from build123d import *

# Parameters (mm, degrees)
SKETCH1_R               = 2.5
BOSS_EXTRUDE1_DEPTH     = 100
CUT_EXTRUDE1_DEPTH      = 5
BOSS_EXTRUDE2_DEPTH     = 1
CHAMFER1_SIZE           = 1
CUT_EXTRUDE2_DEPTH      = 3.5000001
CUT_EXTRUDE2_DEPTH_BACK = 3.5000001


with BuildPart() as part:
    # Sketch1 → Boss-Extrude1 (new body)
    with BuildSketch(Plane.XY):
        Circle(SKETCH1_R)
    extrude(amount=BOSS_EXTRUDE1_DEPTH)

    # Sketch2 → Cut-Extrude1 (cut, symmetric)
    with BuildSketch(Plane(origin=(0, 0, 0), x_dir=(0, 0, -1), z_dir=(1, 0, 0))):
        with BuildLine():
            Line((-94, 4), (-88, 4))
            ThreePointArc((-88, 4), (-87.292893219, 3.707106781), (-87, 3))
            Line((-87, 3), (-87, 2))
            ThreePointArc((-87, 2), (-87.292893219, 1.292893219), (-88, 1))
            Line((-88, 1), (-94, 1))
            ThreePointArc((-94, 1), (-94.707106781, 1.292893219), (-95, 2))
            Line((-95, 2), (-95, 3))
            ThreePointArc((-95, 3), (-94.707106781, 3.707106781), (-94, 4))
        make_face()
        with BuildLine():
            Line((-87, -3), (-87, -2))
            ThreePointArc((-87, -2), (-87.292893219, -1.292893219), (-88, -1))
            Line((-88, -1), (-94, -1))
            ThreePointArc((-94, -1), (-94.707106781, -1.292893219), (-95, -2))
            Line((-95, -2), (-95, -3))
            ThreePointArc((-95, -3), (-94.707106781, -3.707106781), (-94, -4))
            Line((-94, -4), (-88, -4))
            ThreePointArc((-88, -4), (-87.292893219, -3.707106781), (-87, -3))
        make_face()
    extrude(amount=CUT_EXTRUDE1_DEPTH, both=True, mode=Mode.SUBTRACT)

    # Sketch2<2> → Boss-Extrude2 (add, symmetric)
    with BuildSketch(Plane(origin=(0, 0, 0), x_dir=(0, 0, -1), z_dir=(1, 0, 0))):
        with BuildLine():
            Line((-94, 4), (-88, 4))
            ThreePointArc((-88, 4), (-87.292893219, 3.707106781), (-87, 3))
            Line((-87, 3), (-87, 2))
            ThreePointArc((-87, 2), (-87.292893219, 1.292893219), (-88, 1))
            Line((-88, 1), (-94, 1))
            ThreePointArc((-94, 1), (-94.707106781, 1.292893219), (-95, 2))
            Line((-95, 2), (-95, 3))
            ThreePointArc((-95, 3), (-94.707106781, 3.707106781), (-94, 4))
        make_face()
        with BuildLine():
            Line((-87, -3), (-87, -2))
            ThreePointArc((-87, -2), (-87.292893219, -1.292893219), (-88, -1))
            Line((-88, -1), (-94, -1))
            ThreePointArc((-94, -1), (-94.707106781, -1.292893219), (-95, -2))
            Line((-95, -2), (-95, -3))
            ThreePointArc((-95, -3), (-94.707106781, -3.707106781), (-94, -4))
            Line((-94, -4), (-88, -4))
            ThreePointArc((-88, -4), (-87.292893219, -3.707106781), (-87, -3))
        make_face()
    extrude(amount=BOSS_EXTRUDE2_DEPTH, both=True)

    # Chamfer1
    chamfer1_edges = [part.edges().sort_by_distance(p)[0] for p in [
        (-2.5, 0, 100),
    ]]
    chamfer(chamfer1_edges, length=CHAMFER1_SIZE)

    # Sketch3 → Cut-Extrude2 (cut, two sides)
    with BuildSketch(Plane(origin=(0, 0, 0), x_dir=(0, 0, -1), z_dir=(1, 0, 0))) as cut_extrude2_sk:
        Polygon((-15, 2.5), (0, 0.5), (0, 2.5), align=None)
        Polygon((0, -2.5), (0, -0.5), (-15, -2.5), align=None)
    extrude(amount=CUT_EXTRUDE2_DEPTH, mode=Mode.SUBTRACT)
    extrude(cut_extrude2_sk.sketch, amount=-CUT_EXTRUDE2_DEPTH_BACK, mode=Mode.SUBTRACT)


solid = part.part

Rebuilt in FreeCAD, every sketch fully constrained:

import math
import FreeCAD as App
import Part
import Sketcher

V = App.Vector


def edges_at(feature, points):
    """Names of the edges that pass closest to the given points."""
    edges = feature.Shape.Edges
    near = lambda p: min(range(len(edges)), key=lambda i: edges[i].distToShape(Part.Vertex(*p))[0])
    return sorted({f"Edge{near(p) + 1}" for p in points})

doc = App.newDocument("Part")
params = doc.addObject("Spreadsheet::Sheet", "Params")
for row, (alias, value) in enumerate([
    ("sketch1_diameter", "5 mm"),
    ("pad1_length", "100 mm"),
    ("sketch2_radius", "1 mm"),
    ("sketch2_width", "1 mm"),
    ("sketch2_height", "6 mm"),
    ("pocket1_length", "10 mm"),
    ("sketch3_radius", "1 mm"),
    ("sketch3_width", "1 mm"),
    ("sketch3_height", "6 mm"),
    ("pad2_length", "2 mm"),
    ("chamfer_size", "1 mm"),
    ("sketch4_width", "2 mm"),
    ("sketch4_height", "15 mm"),
], start=1):
    params.set(f"A{row}", alias)
    params.set(f"B{row}", "=" + value)
    params.setAlias(f"B{row}", alias)

body = doc.addObject("PartDesign::Body", "Body")

# Sketch on XY plane
sketch1 = body.newObject("Sketcher::SketchObject", "Sketch")
sketch1.AttachmentSupport = (doc.getObject("XY_Plane"), [""])
sketch1.MapMode = "FlatFace"
sketch1.addGeometry(Part.Circle(V(0, 0, 0), V(0, 0, 1), 2.5), False)
sketch1.addConstraint([
    Sketcher.Constraint("Coincident", 0, 3, -1, 1),
    Sketcher.Constraint("Diameter", 0, 5.0),
])
sketch1.setExpression("Constraints[1]", "Params.sketch1_diameter")
pad1 = body.newObject("PartDesign::Pad", "Pad")
pad1.Profile = sketch1
pad1.setExpression("Length", "Params.pad1_length")

# Sketch on YZ plane
sketch2 = body.newObject("Sketcher::SketchObject", "Sketch001")
sketch2.AttachmentSupport = (doc.getObject("YZ_Plane"), [""])
sketch2.MapMode = "FlatFace"
sketch2.addGeometry([
    Part.LineSegment(V(4, 88, 0), V(4, 94, 0)),  # 0
    Part.ArcOfCircle(Part.Circle(V(3, 94, 0), V(0, 0, 1), 1), math.radians(0), math.radians(90)),  # 1
    Part.LineSegment(V(3, 95, 0), V(2, 95, 0)),  # 2
    Part.ArcOfCircle(Part.Circle(V(2, 94, 0), V(0, 0, 1), 1), math.radians(90), math.radians(180)),  # 3
    Part.LineSegment(V(1, 94, 0), V(1, 88, 0)),  # 4
    Part.ArcOfCircle(Part.Circle(V(2, 88, 0), V(0, 0, 1), 1), math.radians(-180), math.radians(-90)),  # 5
    Part.LineSegment(V(2, 87, 0), V(3, 87, 0)),  # 6
    Part.ArcOfCircle(Part.Circle(V(3, 88, 0), V(0, 0, 1), 1), math.radians(-90), math.radians(0)),  # 7
    Part.LineSegment(V(-3, 87, 0), V(-2, 87, 0)),  # 8
    Part.ArcOfCircle(Part.Circle(V(-2, 88, 0), V(0, 0, 1), 1), math.radians(-90), math.radians(0)),  # 9
    Part.LineSegment(V(-1, 88, 0), V(-1, 94, 0)),  # 10
    Part.ArcOfCircle(Part.Circle(V(-2, 94, 0), V(0, 0, 1), 1), math.radians(0), math.radians(90)),  # 11
    Part.LineSegment(V(-2, 95, 0), V(-3, 95, 0)),  # 12
    Part.ArcOfCircle(Part.Circle(V(-3, 94, 0), V(0, 0, 1), 1), math.radians(90), math.radians(180)),  # 13
    Part.LineSegment(V(-4, 94, 0), V(-4, 88, 0)),  # 14
    Part.ArcOfCircle(Part.Circle(V(-3, 88, 0), V(0, 0, 1), 1), math.radians(-180), math.radians(-90)),  # 15
], False)
sketch2.addConstraint([
    Sketcher.Constraint("Tangent", 0, 2, 1, 1),
    Sketcher.Constraint("Tangent", 1, 2, 2, 1),
    Sketcher.Constraint("Tangent", 2, 2, 3, 1),
    Sketcher.Constraint("Tangent", 3, 2, 4, 1),
    Sketcher.Constraint("Tangent", 4, 2, 5, 1),
    Sketcher.Constraint("Tangent", 5, 2, 6, 1),
    Sketcher.Constraint("Tangent", 6, 2, 7, 1),
    Sketcher.Constraint("Tangent", 7, 2, 0, 1),
    Sketcher.Constraint("Tangent", 8, 2, 9, 1),
    Sketcher.Constraint("Tangent", 9, 2, 10, 1),
    Sketcher.Constraint("Tangent", 10, 2, 11, 1),
    Sketcher.Constraint("Tangent", 11, 2, 12, 1),
    Sketcher.Constraint("Tangent", 12, 2, 13, 1),
    Sketcher.Constraint("Tangent", 13, 2, 14, 1),
    Sketcher.Constraint("Tangent", 14, 2, 15, 1),
    Sketcher.Constraint("Tangent", 15, 2, 8, 1),
    Sketcher.Constraint("Vertical", 0),
    Sketcher.Constraint("Horizontal", 2),
    Sketcher.Constraint("Vertical", 4),
    Sketcher.Constraint("Horizontal", 6),
    Sketcher.Constraint("Horizontal", 8),
    Sketcher.Constraint("Vertical", 10),
    Sketcher.Constraint("Horizontal", 12),
    Sketcher.Constraint("Vertical", 14),
    Sketcher.Constraint("Equal", 1, 3),
    Sketcher.Constraint("Equal", 3, 5),
    Sketcher.Constraint("Equal", 5, 7),
    Sketcher.Constraint("Equal", 7, 9),
    Sketcher.Constraint("Equal", 9, 11),
    Sketcher.Constraint("Equal", 11, 13),
    Sketcher.Constraint("Equal", 13, 15),
    Sketcher.Constraint("Symmetric", 5, 3, 9, 3, -2),
    Sketcher.Constraint("Symmetric", 1, 3, 13, 3, -2),
    Sketcher.Constraint("Radius", 1, 1.0),
    Sketcher.Constraint("DistanceX", 2, 2, 2, 1, 1.0),
    Sketcher.Constraint("DistanceY", 0, 1, 0, 2, 6.0),
    Sketcher.Constraint("DistanceX", -1, 1, 1, 3, 3.0),
    Sketcher.Constraint("DistanceY", -1, 1, 1, 3, 94.0),
])
sketch2.setExpression("Constraints[33]", "Params.sketch2_radius")
sketch2.setExpression("Constraints[34]", "Params.sketch2_width")
sketch2.setExpression("Constraints[35]", "Params.sketch2_height")
pocket1 = body.newObject("PartDesign::Pocket", "Pocket")
pocket1.Profile = sketch2
pocket1.setExpression("Length", "Params.pocket1_length")
pocket1.Midplane = True

# Sketch on YZ plane
sketch3 = body.newObject("Sketcher::SketchObject", "Sketch002")
sketch3.AttachmentSupport = (doc.getObject("YZ_Plane"), [""])
sketch3.MapMode = "FlatFace"
sketch3.addGeometry([
    Part.LineSegment(V(4, 88, 0), V(4, 94, 0)),  # 0
    Part.ArcOfCircle(Part.Circle(V(3, 94, 0), V(0, 0, 1), 1), math.radians(0), math.radians(90)),  # 1
    Part.LineSegment(V(3, 95, 0), V(2, 95, 0)),  # 2
    Part.ArcOfCircle(Part.Circle(V(2, 94, 0), V(0, 0, 1), 1), math.radians(90), math.radians(180)),  # 3
    Part.LineSegment(V(1, 94, 0), V(1, 88, 0)),  # 4
    Part.ArcOfCircle(Part.Circle(V(2, 88, 0), V(0, 0, 1), 1), math.radians(-180), math.radians(-90)),  # 5
    Part.LineSegment(V(2, 87, 0), V(3, 87, 0)),  # 6
    Part.ArcOfCircle(Part.Circle(V(3, 88, 0), V(0, 0, 1), 1), math.radians(-90), math.radians(0)),  # 7
    Part.LineSegment(V(-3, 87, 0), V(-2, 87, 0)),  # 8
    Part.ArcOfCircle(Part.Circle(V(-2, 88, 0), V(0, 0, 1), 1), math.radians(-90), math.radians(0)),  # 9
    Part.LineSegment(V(-1, 88, 0), V(-1, 94, 0)),  # 10
    Part.ArcOfCircle(Part.Circle(V(-2, 94, 0), V(0, 0, 1), 1), math.radians(0), math.radians(90)),  # 11
    Part.LineSegment(V(-2, 95, 0), V(-3, 95, 0)),  # 12
    Part.ArcOfCircle(Part.Circle(V(-3, 94, 0), V(0, 0, 1), 1), math.radians(90), math.radians(180)),  # 13
    Part.LineSegment(V(-4, 94, 0), V(-4, 88, 0)),  # 14
    Part.ArcOfCircle(Part.Circle(V(-3, 88, 0), V(0, 0, 1), 1), math.radians(-180), math.radians(-90)),  # 15
], False)
sketch3.addConstraint([
    Sketcher.Constraint("Tangent", 0, 2, 1, 1),
    Sketcher.Constraint("Tangent", 1, 2, 2, 1),
    Sketcher.Constraint("Tangent", 2, 2, 3, 1),
    Sketcher.Constraint("Tangent", 3, 2, 4, 1),
    Sketcher.Constraint("Tangent", 4, 2, 5, 1),
    Sketcher.Constraint("Tangent", 5, 2, 6, 1),
    Sketcher.Constraint("Tangent", 6, 2, 7, 1),
    Sketcher.Constraint("Tangent", 7, 2, 0, 1),
    Sketcher.Constraint("Tangent", 8, 2, 9, 1),
    Sketcher.Constraint("Tangent", 9, 2, 10, 1),
    Sketcher.Constraint("Tangent", 10, 2, 11, 1),
    Sketcher.Constraint("Tangent", 11, 2, 12, 1),
    Sketcher.Constraint("Tangent", 12, 2, 13, 1),
    Sketcher.Constraint("Tangent", 13, 2, 14, 1),
    Sketcher.Constraint("Tangent", 14, 2, 15, 1),
    Sketcher.Constraint("Tangent", 15, 2, 8, 1),
    Sketcher.Constraint("Vertical", 0),
    Sketcher.Constraint("Horizontal", 2),
    Sketcher.Constraint("Vertical", 4),
    Sketcher.Constraint("Horizontal", 6),
    Sketcher.Constraint("Horizontal", 8),
    Sketcher.Constraint("Vertical", 10),
    Sketcher.Constraint("Horizontal", 12),
    Sketcher.Constraint("Vertical", 14),
    Sketcher.Constraint("Equal", 1, 3),
    Sketcher.Constraint("Equal", 3, 5),
    Sketcher.Constraint("Equal", 5, 7),
    Sketcher.Constraint("Equal", 7, 9),
    Sketcher.Constraint("Equal", 9, 11),
    Sketcher.Constraint("Equal", 11, 13),
    Sketcher.Constraint("Equal", 13, 15),
    Sketcher.Constraint("Symmetric", 5, 3, 9, 3, -2),
    Sketcher.Constraint("Symmetric", 1, 3, 13, 3, -2),
    Sketcher.Constraint("Radius", 1, 1.0),
    Sketcher.Constraint("DistanceX", 2, 2, 2, 1, 1.0),
    Sketcher.Constraint("DistanceY", 0, 1, 0, 2, 6.0),
    Sketcher.Constraint("DistanceX", -1, 1, 1, 3, 3.0),
    Sketcher.Constraint("DistanceY", -1, 1, 1, 3, 94.0),
])
sketch3.setExpression("Constraints[33]", "Params.sketch3_radius")
sketch3.setExpression("Constraints[34]", "Params.sketch3_width")
sketch3.setExpression("Constraints[35]", "Params.sketch3_height")
pad2 = body.newObject("PartDesign::Pad", "Pad001")
pad2.Profile = sketch3
pad2.setExpression("Length", "Params.pad2_length")
pad2.Midplane = True
doc.recompute()

chamfer = body.newObject("PartDesign::Chamfer", "Chamfer")
chamfer.Base = (pad2, edges_at(pad2, [(-2.5, 0, 100)]))
chamfer.setExpression("Size", "Params.chamfer_size")

# Sketch on YZ plane
sketch4 = body.newObject("Sketcher::SketchObject", "Sketch003")
sketch4.AttachmentSupport = (doc.getObject("YZ_Plane"), [""])
sketch4.MapMode = "FlatFace"
sketch4.addGeometry([
    Part.LineSegment(V(2.5, 15, 0), V(0.5, 0, 0)),  # 0
    Part.LineSegment(V(0.5, 0, 0), V(2.5, 0, 0)),  # 1
    Part.LineSegment(V(2.5, 0, 0), V(2.5, 15, 0)),  # 2
    Part.LineSegment(V(-2.5, 0, 0), V(-0.5, 0, 0)),  # 3
    Part.LineSegment(V(-0.5, 0, 0), V(-2.5, 15, 0)),  # 4
    Part.LineSegment(V(-2.5, 15, 0), V(-2.5, 0, 0)),  # 5
], False)
sketch4.addConstraint([
    Sketcher.Constraint("Coincident", 0, 2, 1, 1),
    Sketcher.Constraint("Coincident", 1, 2, 2, 1),
    Sketcher.Constraint("Coincident", 2, 2, 0, 1),
    Sketcher.Constraint("Coincident", 3, 2, 4, 1),
    Sketcher.Constraint("Coincident", 4, 2, 5, 1),
    Sketcher.Constraint("Coincident", 5, 2, 3, 1),
    Sketcher.Constraint("Horizontal", 1),
    Sketcher.Constraint("Vertical", 2),
    Sketcher.Constraint("Horizontal", 3),
    Sketcher.Constraint("Vertical", 5),
    Sketcher.Constraint("Symmetric", 0, 2, 3, 2, -1, 1),
    Sketcher.Constraint("Symmetric", 2, 2, 4, 2, -2),
    Sketcher.Constraint("PointOnObject", 0, 2, -1),
    Sketcher.Constraint("DistanceX", 1, 1, 1, 2, 2.0),
    Sketcher.Constraint("DistanceY", 2, 1, 2, 2, 15.0),
    Sketcher.Constraint("DistanceX", 3, 2, 0, 2, 1.0),
])
sketch4.setExpression("Constraints[13]", "Params.sketch4_width")
sketch4.setExpression("Constraints[14]", "Params.sketch4_height")
pocket2 = body.newObject("PartDesign::Pocket", "Pocket001")
pocket2.Profile = sketch4
pocket2.Type = "ThroughAll"
pocket2.Midplane = True

doc.recompute()
